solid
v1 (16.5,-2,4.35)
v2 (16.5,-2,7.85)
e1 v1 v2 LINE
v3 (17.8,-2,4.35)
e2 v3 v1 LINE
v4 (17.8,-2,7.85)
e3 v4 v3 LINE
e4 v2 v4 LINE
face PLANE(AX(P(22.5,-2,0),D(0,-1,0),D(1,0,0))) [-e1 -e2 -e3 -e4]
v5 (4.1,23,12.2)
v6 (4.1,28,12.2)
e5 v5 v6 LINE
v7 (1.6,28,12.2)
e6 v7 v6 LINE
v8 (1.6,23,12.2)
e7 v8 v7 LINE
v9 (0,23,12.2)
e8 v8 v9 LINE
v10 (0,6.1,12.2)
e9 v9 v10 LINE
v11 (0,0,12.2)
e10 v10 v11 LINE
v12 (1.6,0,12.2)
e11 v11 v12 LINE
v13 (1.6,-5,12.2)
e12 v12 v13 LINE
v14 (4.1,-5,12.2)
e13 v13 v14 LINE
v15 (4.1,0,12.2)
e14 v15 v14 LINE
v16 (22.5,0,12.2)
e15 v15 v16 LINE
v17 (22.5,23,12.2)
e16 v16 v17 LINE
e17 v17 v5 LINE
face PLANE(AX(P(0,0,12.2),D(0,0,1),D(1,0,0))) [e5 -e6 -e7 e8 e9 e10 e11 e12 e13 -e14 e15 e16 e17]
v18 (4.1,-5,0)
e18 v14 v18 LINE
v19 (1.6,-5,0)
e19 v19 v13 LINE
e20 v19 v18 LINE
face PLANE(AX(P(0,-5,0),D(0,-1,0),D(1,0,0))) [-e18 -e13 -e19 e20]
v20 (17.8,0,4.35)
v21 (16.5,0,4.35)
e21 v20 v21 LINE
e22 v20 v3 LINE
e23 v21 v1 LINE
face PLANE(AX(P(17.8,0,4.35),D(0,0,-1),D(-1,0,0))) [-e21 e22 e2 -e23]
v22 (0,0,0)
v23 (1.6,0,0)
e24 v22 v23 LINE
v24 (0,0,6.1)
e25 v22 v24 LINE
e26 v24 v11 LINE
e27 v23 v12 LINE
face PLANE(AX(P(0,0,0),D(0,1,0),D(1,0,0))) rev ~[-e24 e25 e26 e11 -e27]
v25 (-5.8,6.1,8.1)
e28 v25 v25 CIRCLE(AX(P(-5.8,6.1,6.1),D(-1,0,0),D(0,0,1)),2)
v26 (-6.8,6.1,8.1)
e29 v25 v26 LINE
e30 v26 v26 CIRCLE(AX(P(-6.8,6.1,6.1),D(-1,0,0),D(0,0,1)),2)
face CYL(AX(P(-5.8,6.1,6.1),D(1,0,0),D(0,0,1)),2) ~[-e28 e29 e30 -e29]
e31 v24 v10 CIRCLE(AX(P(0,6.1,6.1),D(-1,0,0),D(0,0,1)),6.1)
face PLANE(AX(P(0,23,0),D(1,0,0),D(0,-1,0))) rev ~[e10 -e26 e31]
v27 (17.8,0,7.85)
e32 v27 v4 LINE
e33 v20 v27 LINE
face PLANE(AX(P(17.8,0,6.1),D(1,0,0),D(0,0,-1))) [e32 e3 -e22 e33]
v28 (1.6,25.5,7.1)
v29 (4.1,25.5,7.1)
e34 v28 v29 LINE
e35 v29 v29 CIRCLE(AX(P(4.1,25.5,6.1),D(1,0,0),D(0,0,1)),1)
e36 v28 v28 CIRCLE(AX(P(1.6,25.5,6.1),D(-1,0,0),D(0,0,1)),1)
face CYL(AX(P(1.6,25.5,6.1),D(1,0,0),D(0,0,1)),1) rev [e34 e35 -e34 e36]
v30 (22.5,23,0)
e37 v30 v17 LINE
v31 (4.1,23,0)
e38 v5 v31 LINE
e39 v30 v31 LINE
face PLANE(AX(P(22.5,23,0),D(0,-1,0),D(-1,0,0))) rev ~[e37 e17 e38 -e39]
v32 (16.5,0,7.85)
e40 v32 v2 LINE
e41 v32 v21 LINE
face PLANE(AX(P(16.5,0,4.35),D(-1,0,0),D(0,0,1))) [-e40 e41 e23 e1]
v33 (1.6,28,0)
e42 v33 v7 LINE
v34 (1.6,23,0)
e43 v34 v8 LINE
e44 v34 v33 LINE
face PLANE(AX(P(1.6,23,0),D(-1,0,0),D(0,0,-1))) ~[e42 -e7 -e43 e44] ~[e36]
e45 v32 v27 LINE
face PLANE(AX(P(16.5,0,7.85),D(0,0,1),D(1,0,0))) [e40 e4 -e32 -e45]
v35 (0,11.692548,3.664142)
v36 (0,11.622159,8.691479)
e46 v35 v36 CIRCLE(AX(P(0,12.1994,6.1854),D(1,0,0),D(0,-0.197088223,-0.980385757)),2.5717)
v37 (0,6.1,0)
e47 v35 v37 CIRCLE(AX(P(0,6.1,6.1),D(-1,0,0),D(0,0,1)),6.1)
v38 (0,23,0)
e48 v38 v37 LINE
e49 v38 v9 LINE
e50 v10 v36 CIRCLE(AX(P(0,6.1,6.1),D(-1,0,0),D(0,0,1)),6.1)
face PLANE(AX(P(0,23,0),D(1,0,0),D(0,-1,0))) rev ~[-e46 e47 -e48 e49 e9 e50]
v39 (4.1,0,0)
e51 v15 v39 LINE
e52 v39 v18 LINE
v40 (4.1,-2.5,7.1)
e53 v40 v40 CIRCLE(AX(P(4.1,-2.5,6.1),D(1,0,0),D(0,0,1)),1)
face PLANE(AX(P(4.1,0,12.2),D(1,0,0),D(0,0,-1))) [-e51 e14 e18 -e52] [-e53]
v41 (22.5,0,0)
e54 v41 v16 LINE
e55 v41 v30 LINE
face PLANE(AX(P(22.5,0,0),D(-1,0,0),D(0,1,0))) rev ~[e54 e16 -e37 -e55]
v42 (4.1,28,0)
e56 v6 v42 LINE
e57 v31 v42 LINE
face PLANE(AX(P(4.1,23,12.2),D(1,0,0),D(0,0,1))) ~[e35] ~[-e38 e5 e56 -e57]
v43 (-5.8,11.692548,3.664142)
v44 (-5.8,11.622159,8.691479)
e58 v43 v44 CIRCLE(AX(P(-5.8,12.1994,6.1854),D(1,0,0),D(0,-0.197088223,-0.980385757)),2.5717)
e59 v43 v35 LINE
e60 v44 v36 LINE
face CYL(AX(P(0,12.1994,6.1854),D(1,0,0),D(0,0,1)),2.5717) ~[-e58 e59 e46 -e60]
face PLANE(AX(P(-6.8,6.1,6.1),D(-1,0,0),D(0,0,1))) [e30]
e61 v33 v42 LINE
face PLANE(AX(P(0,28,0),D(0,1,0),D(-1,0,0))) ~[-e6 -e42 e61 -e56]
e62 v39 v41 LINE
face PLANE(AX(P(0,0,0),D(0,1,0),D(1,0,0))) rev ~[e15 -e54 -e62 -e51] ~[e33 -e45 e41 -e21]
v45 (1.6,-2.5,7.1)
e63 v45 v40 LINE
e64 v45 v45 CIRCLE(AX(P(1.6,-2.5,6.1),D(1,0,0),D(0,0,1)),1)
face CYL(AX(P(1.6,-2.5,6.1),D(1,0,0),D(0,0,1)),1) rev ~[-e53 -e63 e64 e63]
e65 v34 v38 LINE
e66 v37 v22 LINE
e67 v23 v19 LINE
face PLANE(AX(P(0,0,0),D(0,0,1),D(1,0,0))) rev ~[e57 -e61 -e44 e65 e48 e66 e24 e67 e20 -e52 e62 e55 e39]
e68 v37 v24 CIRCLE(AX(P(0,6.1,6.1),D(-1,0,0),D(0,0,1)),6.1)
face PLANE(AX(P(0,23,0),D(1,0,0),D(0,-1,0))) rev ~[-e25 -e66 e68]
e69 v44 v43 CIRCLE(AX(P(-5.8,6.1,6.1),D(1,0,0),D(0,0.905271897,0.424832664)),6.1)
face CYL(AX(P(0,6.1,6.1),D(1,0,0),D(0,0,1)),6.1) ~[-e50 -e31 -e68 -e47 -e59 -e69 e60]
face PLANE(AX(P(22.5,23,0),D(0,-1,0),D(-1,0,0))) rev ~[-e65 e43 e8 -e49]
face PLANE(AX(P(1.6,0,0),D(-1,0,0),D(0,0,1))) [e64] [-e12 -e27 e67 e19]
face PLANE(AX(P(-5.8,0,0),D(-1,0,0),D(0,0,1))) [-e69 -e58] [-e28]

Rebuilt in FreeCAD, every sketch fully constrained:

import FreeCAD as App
import Part
import Sketcher

V = App.Vector


def add_polygon(sketch, points):
    """Adds a closed chain of lines whose ends are joined by coincident constraints."""
    first, n = sketch.GeometryCount, len(points)
    for a, b in zip(points, points[1:] + points[:1]):
        sketch.addGeometry(Part.LineSegment(App.Vector(*a, 0), App.Vector(*b, 0)), False)
    for i in range(n):
        sketch.addConstraint(Sketcher.Constraint("Coincident", first + i, 2, first + (i + 1) % n, 1))

doc = App.newDocument("Part")
body = doc.addObject("PartDesign::Body", "Body")

sketch1 = body.newObject("Sketcher::SketchObject", "Sketch")
sketch1.AttachmentSupport = (doc.getObject("XY_Plane"), [""])
sketch1.MapMode = "FlatFace"
add_polygon(sketch1, [(0, 23), (0, 0), (22, 0), (22, 23)])
sketch1.addConstraint([
    Sketcher.Constraint("Vertical", 0),
    Sketcher.Constraint("Horizontal", 1),
    Sketcher.Constraint("Vertical", 2),
    Sketcher.Constraint("Horizontal", 3),
    Sketcher.Constraint("Coincident", 0, 2, -1, 1),
    Sketcher.Constraint("DistanceY", 0, 2, 0, 1, 23.0),
    Sketcher.Constraint("DistanceX", 1, 1, 1, 2, 22.5),
])
pad1 = body.newObject("PartDesign::Pad", "Pad")
pad1.Profile = sketch1
pad1.Length = 12.2

sketch2 = body.newObject("Sketcher::SketchObject", "Sketch001")
sketch2.AttachmentSupport = (doc.getObject("XZ_Plane"), [""])
sketch2.MapMode = "FlatFace"
add_polygon(sketch2, [(4.1, 12.2), (1.6, 12.2), (1.6, 0), (4.1, 0)])
sketch2.addConstraint([
    Sketcher.Constraint("Horizontal", 0),
    Sketcher.Constraint("Vertical", 1),
    Sketcher.Constraint("Horizontal", 2),
    Sketcher.Constraint("Vertical", 3),
    Sketcher.Constraint("PointOnObject", 1, 2, -1),
    Sketcher.Constraint("DistanceX", 0, 2, 0, 1, 2.5),
    Sketcher.Constraint("DistanceY", 1, 2, 1, 1, 12.2),
    Sketcher.Constraint("DistanceX", -1, 1, 0, 2, 1.6),
])
pad2 = body.newObject("PartDesign::Pad", "Pad001")
pad2.Profile = sketch2
pad2.Length = 5
doc.recompute()

datumplane = body.newObject("PartDesign::Plane", "DatumPlane")
datumplane.AttachmentSupport = (doc.getObject("XZ_Plane"), [""])
datumplane.MapMode = "FlatFace"
datumplane.AttachmentOffset = App.Placement(V(0, 0, -11.5), App.Rotation())
mirrored = body.newObject("PartDesign::Mirrored", "Mirrored")
mirrored.Originals = [pad2]
mirrored.MirrorPlane = (datumplane, [""])
body.Tip = mirrored

sketch3 = body.newObject("Sketcher::SketchObject", "Sketch002")
sketch3.AttachmentSupport = (doc.getObject("YZ_Plane"), [""])
sketch3.MapMode = "FlatFace"
sketch3.AttachmentOffset = App.Placement(V(0, 0, 1.6), App.Rotation())
sketch3.addGeometry(Part.Circle(V(-2.5, 6.1, 0), V(0, 0, 1), 1), False)
sketch3.addConstraint([
    Sketcher.Constraint("Diameter", 0, 2.0),
    Sketcher.Constraint("DistanceX", 0, 3, -1, 1, 2.5),
    Sketcher.Constraint("DistanceY", -1, 1, 0, 3, 6.1),
])
doc.recompute()
hole = body.newObject("PartDesign::Hole", "Hole")
hole.Profile = sketch3
hole.ThreadType = "None"
hole.Diameter = 2
hole.DepthType = "ThroughAll"
hole.Reversed = True
doc.recompute()

datumplane2 = body.newObject("PartDesign::Plane", "DatumPlane001")
datumplane2.AttachmentSupport = (doc.getObject("XZ_Plane"), [""])
datumplane2.MapMode = "FlatFace"
datumplane2.AttachmentOffset = App.Placement(V(0, 0, -11.5), App.Rotation())
mirrored2 = body.newObject("PartDesign::Mirrored", "Mirrored001")
mirrored2.Originals = [hole]
mirrored2.MirrorPlane = (datumplane2, [""])
body.Tip = mirrored2

sketch4 = body.newObject("Sketcher::SketchObject", "Sketch003")
sketch4.AttachmentSupport = (doc.getObject("XZ_Plane"), [""])
sketch4.MapMode = "FlatFace"
add_polygon(sketch4, [(16.5, 4.3), (17.8, 4.3), (17.8, 7.8), (16.5, 7.8)])
sketch4.addConstraint([
    Sketcher.Constraint("Horizontal", 0),
    Sketcher.Constraint("Vertical", 1),
    Sketcher.Constraint("Horizontal", 2),
    Sketcher.Constraint("Vertical", 3),
    Sketcher.Constraint("DistanceX", 0, 1, 0, 2, 1.3),
    Sketcher.Constraint("DistanceY", 1, 1, 1, 2, 3.5),
    Sketcher.Constraint("DistanceX", -1, 1, 0, 2, 17.8),
    Sketcher.Constraint("DistanceY", -1, 1, 0, 2, 4.35),
])
pad3 = body.newObject("PartDesign::Pad", "Pad002")
pad3.Profile = sketch4
pad3.Length = 2

sketch5 = body.newObject("Sketcher::SketchObject", "Sketch004")
sketch5.AttachmentSupport = (doc.getObject("YZ_Plane"), [""])
sketch5.MapMode = "FlatFace"
sketch5.addGeometry(Part.Circle(V(6, 6, 0), V(0, 0, 1), 6), False)
sketch5.addConstraint([
    Sketcher.Constraint("Diameter", 0, 12.2),
    Sketcher.Constraint("DistanceX", -1, 1, 0, 3, 6.1),
    Sketcher.Constraint("DistanceY", -1, 1, 0, 3, 6.1),
])
pad4 = body.newObject("PartDesign::Pad", "Pad003")
pad4.Profile = sketch5
pad4.Length = 5.8
pad4.Reversed = True

sketch6 = body.newObject("Sketcher::SketchObject", "Sketch005")
sketch6.AttachmentSupport = (doc.getObject("YZ_Plane"), [""])
sketch6.MapMode = "FlatFace"
sketch6.AttachmentOffset = App.Placement(V(0, 0, -5.8), App.Rotation())
sketch6.addGeometry(Part.Circle(V(6.1, 6.1, 0), V(0, 0, 1), 2), False)
sketch6.addConstraint([
    Sketcher.Constraint("Diameter", 0, 4.0),
    Sketcher.Constraint("DistanceX", -1, 1, 0, 3, 6.1),
    Sketcher.Constraint("DistanceY", -1, 1, 0, 3, 6.1),
])
pad5 = body.newObject("PartDesign::Pad", "Pad004")
pad5.Profile = sketch6
pad5.Length = 1
pad5.Reversed = True

sketch7 = body.newObject("Sketcher::SketchObject", "Sketch006")
sketch7.AttachmentSupport = (doc.getObject("YZ_Plane"), [""])
sketch7.MapMode = "FlatFace"
sketch7.addGeometry(Part.Circle(V(12.2, 6.2, 0), V(0, 0, 1), 2.6), False)
sketch7.addConstraint([
    Sketcher.Constraint("Diameter", 0, 5.1434),
    Sketcher.Constraint("DistanceX", -1, 1, 0, 3, 12.1994),
    Sketcher.Constraint("DistanceY", -1, 1, 0, 3, 6.1854),
])
pad6 = body.newObject("PartDesign::Pad", "Pad005")
pad6.Profile = sketch7
pad6.Length = 5.8
pad6.Reversed = True

doc.recompute()
